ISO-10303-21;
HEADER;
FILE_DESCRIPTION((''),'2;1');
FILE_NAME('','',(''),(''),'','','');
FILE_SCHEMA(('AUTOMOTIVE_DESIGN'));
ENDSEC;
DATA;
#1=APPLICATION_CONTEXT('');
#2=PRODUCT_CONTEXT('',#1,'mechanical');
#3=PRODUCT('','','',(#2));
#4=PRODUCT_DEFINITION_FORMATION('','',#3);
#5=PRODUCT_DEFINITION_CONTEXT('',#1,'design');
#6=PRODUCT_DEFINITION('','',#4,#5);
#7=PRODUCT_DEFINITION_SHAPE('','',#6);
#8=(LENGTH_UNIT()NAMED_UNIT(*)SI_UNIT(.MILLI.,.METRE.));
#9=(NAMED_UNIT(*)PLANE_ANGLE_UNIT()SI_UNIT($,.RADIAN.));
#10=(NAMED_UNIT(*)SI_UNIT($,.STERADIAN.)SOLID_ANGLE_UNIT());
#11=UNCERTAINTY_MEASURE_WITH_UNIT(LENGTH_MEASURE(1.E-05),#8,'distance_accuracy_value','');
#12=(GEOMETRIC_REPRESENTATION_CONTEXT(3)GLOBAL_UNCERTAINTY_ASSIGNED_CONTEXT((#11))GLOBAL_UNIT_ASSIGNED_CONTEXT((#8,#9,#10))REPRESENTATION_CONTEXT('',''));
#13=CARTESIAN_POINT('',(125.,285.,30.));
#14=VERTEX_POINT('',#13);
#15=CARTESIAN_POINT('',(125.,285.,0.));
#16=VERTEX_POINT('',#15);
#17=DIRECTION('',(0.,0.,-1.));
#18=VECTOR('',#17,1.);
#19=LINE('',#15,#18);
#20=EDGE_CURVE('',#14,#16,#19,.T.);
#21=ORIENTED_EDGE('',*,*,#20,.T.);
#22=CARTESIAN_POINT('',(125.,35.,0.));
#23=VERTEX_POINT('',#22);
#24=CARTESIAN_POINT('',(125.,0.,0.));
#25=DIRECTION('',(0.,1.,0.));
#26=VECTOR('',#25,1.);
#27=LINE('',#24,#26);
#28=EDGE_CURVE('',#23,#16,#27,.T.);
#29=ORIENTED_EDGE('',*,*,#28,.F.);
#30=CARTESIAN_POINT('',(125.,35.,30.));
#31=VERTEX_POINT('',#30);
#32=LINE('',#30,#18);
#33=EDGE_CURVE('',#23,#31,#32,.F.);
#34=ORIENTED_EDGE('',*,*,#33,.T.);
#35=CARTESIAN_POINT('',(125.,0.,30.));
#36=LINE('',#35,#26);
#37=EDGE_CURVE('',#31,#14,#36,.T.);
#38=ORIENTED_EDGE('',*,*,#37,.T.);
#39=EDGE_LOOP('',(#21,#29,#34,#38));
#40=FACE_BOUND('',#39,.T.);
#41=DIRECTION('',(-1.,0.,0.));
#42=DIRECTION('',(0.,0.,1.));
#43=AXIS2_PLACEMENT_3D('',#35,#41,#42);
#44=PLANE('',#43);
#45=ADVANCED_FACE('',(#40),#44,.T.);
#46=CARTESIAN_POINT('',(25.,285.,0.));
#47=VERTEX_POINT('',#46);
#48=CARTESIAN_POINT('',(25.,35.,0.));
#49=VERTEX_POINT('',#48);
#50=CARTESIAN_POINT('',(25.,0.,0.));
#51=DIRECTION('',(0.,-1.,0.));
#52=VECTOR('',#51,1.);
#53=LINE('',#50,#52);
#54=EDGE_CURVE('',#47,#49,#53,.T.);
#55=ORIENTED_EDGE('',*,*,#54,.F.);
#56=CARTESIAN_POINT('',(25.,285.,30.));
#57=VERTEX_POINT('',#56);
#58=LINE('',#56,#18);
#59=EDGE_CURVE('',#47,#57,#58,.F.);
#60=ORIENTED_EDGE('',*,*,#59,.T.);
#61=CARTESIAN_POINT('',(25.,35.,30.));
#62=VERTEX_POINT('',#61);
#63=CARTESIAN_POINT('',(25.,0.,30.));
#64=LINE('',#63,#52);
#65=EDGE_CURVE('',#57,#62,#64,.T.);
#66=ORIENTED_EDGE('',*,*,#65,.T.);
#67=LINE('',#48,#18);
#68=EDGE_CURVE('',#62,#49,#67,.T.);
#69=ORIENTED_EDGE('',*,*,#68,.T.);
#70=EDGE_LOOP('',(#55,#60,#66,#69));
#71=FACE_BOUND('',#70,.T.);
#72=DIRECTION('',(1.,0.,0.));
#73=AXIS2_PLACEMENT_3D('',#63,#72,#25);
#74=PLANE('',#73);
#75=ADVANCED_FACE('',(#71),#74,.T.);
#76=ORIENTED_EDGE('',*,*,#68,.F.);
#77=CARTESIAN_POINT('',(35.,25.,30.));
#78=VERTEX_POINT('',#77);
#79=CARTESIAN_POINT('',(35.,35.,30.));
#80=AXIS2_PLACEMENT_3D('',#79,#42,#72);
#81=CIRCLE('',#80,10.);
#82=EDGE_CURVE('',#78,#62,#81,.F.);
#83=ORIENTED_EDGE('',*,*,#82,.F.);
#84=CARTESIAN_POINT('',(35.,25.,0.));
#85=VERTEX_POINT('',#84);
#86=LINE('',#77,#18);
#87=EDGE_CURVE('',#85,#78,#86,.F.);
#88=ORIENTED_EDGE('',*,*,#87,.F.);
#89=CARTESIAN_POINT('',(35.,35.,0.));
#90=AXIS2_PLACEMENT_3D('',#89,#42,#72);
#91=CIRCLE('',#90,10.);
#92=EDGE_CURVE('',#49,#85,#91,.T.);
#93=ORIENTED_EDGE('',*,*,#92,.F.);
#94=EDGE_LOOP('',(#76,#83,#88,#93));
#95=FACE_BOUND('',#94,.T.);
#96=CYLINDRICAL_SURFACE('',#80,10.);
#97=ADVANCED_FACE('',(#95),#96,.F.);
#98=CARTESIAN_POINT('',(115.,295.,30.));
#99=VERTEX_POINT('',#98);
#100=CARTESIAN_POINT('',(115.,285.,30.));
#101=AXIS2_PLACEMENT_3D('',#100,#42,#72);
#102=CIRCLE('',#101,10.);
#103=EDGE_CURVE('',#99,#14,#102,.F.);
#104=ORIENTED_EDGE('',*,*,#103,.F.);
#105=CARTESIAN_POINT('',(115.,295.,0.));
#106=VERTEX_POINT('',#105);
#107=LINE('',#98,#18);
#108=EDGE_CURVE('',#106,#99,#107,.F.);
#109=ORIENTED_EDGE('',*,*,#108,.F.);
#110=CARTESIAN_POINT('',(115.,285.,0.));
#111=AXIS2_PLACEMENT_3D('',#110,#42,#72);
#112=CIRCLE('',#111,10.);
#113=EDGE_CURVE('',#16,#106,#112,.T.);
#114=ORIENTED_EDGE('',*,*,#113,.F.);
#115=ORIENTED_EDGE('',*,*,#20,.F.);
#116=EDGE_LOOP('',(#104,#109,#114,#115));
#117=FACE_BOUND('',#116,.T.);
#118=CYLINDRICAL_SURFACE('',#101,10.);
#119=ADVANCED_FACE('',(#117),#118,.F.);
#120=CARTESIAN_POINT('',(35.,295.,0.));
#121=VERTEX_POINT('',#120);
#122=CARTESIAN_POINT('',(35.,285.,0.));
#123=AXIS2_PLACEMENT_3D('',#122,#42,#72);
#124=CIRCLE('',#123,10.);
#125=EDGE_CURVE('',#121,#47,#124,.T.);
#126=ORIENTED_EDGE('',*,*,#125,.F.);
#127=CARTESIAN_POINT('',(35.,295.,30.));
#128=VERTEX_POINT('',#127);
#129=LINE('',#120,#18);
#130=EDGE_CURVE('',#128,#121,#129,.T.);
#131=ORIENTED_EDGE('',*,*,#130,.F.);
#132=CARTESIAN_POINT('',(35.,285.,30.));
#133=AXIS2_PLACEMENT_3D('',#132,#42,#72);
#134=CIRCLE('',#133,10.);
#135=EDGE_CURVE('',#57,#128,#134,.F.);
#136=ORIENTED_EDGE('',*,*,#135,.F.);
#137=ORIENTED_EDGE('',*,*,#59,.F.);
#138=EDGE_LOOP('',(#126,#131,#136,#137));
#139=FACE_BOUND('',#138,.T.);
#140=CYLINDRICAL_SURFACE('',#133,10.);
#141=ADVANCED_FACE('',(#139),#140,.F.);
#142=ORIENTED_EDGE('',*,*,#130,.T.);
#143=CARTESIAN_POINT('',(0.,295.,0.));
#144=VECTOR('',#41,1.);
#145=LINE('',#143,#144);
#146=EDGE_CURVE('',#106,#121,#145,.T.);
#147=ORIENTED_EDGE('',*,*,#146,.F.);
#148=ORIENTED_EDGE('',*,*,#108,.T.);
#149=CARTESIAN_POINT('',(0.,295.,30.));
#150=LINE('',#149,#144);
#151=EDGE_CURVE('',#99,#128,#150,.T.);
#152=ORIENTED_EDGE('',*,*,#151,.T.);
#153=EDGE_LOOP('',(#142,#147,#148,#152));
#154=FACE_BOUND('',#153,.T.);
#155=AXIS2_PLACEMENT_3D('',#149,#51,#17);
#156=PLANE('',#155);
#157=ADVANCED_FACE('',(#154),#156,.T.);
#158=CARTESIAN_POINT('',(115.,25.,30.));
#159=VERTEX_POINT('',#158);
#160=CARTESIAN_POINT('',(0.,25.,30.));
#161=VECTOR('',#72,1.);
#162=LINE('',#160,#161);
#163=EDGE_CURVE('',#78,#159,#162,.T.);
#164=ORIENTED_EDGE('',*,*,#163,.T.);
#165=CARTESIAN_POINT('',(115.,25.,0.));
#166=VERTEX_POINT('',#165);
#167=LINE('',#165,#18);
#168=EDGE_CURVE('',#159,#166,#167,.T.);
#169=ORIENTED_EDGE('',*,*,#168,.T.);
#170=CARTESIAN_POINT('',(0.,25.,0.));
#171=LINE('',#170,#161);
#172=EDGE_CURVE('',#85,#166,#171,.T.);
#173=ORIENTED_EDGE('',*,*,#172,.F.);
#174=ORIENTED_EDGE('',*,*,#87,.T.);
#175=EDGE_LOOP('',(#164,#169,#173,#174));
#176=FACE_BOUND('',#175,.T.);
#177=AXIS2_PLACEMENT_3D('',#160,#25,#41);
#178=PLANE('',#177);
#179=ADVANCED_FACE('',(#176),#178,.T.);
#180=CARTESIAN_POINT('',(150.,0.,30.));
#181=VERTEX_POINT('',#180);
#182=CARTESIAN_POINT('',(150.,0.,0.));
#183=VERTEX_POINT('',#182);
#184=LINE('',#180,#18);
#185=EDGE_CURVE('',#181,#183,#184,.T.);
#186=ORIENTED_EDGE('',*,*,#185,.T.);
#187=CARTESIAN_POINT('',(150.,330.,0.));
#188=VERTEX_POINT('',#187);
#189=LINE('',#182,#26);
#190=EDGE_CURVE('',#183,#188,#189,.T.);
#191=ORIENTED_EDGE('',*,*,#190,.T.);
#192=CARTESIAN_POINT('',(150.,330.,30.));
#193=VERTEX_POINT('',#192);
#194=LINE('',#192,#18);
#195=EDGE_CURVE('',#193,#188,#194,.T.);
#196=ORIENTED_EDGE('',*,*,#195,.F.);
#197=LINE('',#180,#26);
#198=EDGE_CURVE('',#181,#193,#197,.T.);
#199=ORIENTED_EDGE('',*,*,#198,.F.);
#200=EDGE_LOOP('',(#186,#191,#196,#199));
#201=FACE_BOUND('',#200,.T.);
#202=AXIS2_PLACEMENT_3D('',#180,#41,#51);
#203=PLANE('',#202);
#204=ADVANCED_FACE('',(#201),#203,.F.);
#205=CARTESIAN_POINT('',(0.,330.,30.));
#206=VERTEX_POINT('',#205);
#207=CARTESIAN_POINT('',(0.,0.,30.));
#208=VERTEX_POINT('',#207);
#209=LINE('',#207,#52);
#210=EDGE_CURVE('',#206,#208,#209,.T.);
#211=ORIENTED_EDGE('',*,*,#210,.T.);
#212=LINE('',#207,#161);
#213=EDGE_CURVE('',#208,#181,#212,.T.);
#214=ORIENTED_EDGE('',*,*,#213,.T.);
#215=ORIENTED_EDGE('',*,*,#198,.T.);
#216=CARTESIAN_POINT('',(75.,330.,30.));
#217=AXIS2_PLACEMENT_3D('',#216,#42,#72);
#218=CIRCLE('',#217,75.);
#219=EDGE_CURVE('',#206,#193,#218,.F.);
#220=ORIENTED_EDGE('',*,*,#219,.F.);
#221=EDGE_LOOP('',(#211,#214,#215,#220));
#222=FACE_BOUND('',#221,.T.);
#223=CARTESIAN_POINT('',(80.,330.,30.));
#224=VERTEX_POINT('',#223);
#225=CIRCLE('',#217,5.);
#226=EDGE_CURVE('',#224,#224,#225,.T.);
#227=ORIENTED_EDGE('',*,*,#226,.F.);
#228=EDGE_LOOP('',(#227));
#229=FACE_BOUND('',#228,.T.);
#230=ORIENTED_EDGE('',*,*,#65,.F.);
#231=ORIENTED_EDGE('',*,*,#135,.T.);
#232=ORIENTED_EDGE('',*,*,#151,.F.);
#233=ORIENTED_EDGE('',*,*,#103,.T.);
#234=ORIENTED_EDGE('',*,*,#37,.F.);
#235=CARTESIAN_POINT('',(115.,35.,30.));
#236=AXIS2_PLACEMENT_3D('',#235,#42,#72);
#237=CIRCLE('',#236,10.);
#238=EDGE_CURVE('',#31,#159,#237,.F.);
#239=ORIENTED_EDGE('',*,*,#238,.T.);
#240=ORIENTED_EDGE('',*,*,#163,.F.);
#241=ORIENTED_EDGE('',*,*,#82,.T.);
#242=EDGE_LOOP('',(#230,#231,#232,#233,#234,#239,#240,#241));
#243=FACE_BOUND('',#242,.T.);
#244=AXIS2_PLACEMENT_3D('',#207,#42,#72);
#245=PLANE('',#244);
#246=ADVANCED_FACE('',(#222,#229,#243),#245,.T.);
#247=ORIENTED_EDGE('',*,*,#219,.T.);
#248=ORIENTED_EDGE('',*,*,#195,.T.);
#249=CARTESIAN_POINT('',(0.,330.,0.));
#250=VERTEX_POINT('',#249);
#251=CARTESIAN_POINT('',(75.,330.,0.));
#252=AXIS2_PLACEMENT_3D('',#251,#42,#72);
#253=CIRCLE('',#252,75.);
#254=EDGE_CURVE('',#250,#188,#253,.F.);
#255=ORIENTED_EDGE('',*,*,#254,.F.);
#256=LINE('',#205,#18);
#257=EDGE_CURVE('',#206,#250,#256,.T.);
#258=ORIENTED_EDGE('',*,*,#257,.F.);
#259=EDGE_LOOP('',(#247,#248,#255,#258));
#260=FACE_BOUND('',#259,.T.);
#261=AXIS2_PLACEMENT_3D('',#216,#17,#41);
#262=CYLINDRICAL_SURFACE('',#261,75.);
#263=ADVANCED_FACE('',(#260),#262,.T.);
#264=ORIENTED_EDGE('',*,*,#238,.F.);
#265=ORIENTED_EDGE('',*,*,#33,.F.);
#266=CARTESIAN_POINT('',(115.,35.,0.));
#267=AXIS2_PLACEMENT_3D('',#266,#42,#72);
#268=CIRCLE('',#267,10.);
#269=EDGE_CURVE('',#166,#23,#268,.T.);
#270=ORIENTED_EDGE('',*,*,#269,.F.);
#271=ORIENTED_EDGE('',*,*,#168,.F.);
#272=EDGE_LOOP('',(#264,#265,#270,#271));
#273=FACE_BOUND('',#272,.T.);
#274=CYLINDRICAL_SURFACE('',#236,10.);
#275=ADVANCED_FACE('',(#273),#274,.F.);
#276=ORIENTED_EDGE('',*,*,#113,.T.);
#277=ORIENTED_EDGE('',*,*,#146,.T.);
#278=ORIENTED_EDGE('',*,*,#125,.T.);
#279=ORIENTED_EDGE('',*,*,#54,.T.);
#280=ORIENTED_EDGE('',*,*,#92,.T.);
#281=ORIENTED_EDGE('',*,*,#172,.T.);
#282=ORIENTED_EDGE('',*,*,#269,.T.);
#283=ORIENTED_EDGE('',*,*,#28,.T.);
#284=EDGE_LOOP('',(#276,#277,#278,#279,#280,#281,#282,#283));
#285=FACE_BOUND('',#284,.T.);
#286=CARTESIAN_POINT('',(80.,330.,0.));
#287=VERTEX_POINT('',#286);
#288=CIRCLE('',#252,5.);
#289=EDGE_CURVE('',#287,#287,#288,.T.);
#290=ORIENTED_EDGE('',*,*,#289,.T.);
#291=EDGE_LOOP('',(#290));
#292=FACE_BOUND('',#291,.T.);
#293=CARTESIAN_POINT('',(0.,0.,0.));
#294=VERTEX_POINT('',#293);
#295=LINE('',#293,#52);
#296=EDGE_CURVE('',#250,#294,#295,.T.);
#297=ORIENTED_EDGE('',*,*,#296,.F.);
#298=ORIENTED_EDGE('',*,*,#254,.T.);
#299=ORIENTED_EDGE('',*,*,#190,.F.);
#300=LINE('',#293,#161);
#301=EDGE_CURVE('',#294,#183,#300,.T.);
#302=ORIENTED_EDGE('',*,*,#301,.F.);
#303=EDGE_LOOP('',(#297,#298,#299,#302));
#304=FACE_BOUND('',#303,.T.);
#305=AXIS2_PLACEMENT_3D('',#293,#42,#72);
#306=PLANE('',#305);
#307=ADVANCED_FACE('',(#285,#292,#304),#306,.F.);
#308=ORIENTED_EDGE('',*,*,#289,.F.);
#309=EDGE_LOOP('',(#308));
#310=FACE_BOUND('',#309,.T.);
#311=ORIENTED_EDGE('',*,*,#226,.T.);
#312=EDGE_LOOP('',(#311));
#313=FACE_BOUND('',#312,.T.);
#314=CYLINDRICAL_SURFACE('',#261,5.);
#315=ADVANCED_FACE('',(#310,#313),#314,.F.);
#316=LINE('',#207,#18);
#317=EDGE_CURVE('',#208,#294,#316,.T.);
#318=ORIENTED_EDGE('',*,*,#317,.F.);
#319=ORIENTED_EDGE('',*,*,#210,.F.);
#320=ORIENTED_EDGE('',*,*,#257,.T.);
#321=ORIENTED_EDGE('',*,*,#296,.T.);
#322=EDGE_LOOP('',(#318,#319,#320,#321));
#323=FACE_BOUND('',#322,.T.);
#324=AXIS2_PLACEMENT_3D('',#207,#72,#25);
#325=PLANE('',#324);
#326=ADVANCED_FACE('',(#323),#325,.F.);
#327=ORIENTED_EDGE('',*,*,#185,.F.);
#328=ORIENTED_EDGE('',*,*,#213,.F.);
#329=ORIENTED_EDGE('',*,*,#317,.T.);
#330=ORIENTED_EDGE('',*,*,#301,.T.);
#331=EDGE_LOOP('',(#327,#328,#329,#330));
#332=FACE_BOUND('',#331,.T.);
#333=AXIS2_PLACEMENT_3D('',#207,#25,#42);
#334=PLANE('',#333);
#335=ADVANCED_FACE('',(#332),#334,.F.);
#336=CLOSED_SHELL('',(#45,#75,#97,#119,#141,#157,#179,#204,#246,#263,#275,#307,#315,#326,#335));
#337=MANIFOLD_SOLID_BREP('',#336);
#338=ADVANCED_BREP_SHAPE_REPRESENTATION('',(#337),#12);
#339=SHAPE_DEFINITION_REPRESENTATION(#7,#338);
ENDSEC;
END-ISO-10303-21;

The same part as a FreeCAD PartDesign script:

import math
import FreeCAD as App
import Part
import Sketcher

V = App.Vector


def edges_at(feature, points):
    """Names of the edges that pass closest to the given points."""
    edges = feature.Shape.Edges
    near = lambda p: min(range(len(edges)), key=lambda i: edges[i].distToShape(Part.Vertex(*p))[0])
    return sorted({f"Edge{near(p) + 1}" for p in points})


def add_polygon(sketch, points):
    """Adds a closed chain of lines whose ends are joined by coincident constraints."""
    first, n = sketch.GeometryCount, len(points)
    for a, b in zip(points, points[1:] + points[:1]):
        sketch.addGeometry(Part.LineSegment(App.Vector(*a, 0), App.Vector(*b, 0)), False)
    for i in range(n):
        sketch.addConstraint(Sketcher.Constraint("Coincident", first + i, 2, first + (i + 1) % n, 1))

doc = App.newDocument("Part")
body = doc.addObject("PartDesign::Body", "Body")

sketch1 = body.newObject("Sketcher::SketchObject", "Sketch")
sketch1.AttachmentSupport = (doc.getObject("XY_Plane"), [""])
sketch1.MapMode = "FlatFace"
sketch1.addGeometry(Part.LineSegment(V(0, 0, 0), V(150, 0, 0)), False)
sketch1.addGeometry(Part.LineSegment(V(150, 0, 0), V(150, 330, 0)), False)
sketch1.addGeometry(Part.ArcOfCircle(Part.Circle(V(75, 330, 0), V(0, 0, 1), 75), math.radians(0), math.radians(180)), False)
sketch1.addGeometry(Part.LineSegment(V(0, 330, 0), V(0, 0, 0)), False)
add_polygon(sketch1, [(125, 25), (25, 25), (25, 295), (125, 295)])
sketch1.addGeometry(Part.Circle(V(75, 330, 0), V(0, 0, 1), 5), False)
sketch1.addConstraint(Sketcher.Constraint("Coincident", 0, 2, 1, 1))
sketch1.addConstraint(Sketcher.Constraint("Tangent", 1, 2, 2, 1))
sketch1.addConstraint(Sketcher.Constraint("Tangent", 2, 2, 3, 1))
sketch1.addConstraint(Sketcher.Constraint("Coincident", 3, 2, 0, 1))
sketch1.addConstraint(Sketcher.Constraint("Horizontal", 0))
sketch1.addConstraint(Sketcher.Constraint("Vertical", 1))
sketch1.addConstraint(Sketcher.Constraint("Vertical", 3))
sketch1.addConstraint(Sketcher.Constraint("Horizontal", 4))
sketch1.addConstraint(Sketcher.Constraint("Vertical", 5))
sketch1.addConstraint(Sketcher.Constraint("Horizontal", 6))
sketch1.addConstraint(Sketcher.Constraint("Vertical", 7))
sketch1.addConstraint(Sketcher.Constraint("Coincident", 3, 2, -1, 1))
sketch1.addConstraint(Sketcher.Constraint("Coincident", 8, 3, 2, 3))
sketch1.addConstraint(Sketcher.Constraint("Diameter", 8, 10.0))
sketch1.addConstraint(Sketcher.Constraint("Radius", 2, 75.0))
sketch1.addConstraint(Sketcher.Constraint("DistanceX", 4, 2, 4, 1, 100.0))
sketch1.addConstraint(Sketcher.Constraint("DistanceY", 1, 1, 1, 2, 330.0))
sketch1.addConstraint(Sketcher.Constraint("DistanceY", 5, 1, 5, 2, 270.0))
sketch1.addConstraint(Sketcher.Constraint("DistanceX", -1, 1, 4, 2, 25.0))
sketch1.addConstraint(Sketcher.Constraint("DistanceY", -1, 1, 4, 2, 25.0))
pad1 = body.newObject("PartDesign::Pad", "Pad")
pad1.Profile = sketch1
pad1.Length = 30
doc.recompute()

fillet = body.newObject("PartDesign::Fillet", "Fillet")
fillet.Base = (pad1, edges_at(pad1, [
    (125, 295, 15),
    (25, 295, 15),
    (25, 25, 15),
    (125, 25, 15),
]))
fillet.Radius = 10

doc.recompute()
